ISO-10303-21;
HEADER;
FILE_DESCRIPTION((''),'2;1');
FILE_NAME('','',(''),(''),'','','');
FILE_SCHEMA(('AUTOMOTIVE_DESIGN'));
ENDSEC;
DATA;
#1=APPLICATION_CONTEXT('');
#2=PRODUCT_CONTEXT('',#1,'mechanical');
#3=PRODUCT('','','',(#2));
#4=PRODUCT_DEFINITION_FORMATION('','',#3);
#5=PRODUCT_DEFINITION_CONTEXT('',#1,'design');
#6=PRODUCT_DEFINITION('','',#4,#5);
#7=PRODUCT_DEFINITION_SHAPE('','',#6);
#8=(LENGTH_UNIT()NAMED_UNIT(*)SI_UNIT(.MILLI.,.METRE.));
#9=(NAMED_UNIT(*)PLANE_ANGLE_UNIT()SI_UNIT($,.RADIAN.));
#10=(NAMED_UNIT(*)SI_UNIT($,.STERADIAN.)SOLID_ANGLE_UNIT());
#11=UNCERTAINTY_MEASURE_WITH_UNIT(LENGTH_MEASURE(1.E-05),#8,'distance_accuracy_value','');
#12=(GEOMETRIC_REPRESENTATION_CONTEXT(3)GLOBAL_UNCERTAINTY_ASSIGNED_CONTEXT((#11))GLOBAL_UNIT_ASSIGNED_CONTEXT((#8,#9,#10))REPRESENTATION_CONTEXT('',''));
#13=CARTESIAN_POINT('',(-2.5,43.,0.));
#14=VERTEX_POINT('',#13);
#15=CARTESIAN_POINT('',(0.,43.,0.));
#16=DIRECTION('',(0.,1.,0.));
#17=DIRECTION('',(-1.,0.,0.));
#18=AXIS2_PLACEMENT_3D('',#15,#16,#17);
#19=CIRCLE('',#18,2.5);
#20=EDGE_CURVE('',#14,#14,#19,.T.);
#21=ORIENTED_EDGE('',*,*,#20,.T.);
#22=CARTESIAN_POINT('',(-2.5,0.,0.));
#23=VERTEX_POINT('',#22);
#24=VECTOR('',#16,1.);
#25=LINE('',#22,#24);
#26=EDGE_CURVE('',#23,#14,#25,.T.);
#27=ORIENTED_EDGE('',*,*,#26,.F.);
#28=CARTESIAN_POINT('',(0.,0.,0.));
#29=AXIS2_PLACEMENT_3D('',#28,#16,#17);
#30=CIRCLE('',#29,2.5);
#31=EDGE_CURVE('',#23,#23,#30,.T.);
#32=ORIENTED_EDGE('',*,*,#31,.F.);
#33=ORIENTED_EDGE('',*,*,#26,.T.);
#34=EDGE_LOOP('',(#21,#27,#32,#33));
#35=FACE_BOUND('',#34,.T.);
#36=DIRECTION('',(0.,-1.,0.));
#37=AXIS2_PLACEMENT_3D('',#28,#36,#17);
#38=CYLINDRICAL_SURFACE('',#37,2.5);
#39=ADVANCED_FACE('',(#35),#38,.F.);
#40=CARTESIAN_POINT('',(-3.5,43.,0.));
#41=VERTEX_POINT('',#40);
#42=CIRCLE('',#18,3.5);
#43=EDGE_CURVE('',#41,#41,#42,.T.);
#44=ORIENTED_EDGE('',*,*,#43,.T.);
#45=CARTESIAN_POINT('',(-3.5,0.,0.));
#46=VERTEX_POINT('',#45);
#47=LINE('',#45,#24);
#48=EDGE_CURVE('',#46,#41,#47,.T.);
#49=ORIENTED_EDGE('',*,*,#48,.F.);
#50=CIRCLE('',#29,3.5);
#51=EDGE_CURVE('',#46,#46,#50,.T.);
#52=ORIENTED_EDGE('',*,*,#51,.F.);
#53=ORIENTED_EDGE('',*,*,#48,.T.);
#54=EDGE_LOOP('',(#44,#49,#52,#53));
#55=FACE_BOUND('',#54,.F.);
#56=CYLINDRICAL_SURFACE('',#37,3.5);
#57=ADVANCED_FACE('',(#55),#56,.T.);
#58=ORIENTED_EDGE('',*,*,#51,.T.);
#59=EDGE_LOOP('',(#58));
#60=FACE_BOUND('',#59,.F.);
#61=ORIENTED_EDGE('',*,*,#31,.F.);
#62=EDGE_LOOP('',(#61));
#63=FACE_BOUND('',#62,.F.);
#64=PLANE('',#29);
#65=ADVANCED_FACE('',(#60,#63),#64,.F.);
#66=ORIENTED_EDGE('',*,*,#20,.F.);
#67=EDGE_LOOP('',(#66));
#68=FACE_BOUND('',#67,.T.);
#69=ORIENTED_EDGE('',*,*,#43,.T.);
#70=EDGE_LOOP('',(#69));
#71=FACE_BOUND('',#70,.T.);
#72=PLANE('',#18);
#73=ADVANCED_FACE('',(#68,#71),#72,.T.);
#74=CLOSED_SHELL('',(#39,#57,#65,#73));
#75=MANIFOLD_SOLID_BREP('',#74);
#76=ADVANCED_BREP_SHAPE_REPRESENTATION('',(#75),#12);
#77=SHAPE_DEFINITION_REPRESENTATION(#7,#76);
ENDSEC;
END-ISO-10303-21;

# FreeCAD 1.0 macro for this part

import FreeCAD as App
import Part
import Sketcher
from FreeCAD import Vector
Q = App.Units.Quantity

doc = App.newDocument("Part")
body = doc.addObject("PartDesign::Body", "Body")

sketch1 = body.newObject("Sketcher::SketchObject", "Sketch")
sketch1.AttachmentSupport = (doc.getObject("XZ_Plane"), [""])
sketch1.MapMode = "FlatFace"
sketch1.addGeometry([
    Part.Circle(Vector(0, 0, 0), Vector(0, 0, 1), 3.5),
    Part.Circle(Vector(0, 0, 0), Vector(0, 0, 1), 2.5),
], False)
sketch1.addConstraint([
    Sketcher.Constraint("Coincident", 0, 3, -1, 1),
    Sketcher.Constraint("Coincident", 1, 3, -1, 1),
    Sketcher.Constraint("Diameter", 0, Q("7 mm")),
    Sketcher.Constraint("Diameter", 1, Q("5 mm")),
])
pad1 = body.newObject("PartDesign::Pad", "Pad")
pad1.Profile = sketch1
pad1.Length = 43
pad1.Reversed = True

doc.recompute()
